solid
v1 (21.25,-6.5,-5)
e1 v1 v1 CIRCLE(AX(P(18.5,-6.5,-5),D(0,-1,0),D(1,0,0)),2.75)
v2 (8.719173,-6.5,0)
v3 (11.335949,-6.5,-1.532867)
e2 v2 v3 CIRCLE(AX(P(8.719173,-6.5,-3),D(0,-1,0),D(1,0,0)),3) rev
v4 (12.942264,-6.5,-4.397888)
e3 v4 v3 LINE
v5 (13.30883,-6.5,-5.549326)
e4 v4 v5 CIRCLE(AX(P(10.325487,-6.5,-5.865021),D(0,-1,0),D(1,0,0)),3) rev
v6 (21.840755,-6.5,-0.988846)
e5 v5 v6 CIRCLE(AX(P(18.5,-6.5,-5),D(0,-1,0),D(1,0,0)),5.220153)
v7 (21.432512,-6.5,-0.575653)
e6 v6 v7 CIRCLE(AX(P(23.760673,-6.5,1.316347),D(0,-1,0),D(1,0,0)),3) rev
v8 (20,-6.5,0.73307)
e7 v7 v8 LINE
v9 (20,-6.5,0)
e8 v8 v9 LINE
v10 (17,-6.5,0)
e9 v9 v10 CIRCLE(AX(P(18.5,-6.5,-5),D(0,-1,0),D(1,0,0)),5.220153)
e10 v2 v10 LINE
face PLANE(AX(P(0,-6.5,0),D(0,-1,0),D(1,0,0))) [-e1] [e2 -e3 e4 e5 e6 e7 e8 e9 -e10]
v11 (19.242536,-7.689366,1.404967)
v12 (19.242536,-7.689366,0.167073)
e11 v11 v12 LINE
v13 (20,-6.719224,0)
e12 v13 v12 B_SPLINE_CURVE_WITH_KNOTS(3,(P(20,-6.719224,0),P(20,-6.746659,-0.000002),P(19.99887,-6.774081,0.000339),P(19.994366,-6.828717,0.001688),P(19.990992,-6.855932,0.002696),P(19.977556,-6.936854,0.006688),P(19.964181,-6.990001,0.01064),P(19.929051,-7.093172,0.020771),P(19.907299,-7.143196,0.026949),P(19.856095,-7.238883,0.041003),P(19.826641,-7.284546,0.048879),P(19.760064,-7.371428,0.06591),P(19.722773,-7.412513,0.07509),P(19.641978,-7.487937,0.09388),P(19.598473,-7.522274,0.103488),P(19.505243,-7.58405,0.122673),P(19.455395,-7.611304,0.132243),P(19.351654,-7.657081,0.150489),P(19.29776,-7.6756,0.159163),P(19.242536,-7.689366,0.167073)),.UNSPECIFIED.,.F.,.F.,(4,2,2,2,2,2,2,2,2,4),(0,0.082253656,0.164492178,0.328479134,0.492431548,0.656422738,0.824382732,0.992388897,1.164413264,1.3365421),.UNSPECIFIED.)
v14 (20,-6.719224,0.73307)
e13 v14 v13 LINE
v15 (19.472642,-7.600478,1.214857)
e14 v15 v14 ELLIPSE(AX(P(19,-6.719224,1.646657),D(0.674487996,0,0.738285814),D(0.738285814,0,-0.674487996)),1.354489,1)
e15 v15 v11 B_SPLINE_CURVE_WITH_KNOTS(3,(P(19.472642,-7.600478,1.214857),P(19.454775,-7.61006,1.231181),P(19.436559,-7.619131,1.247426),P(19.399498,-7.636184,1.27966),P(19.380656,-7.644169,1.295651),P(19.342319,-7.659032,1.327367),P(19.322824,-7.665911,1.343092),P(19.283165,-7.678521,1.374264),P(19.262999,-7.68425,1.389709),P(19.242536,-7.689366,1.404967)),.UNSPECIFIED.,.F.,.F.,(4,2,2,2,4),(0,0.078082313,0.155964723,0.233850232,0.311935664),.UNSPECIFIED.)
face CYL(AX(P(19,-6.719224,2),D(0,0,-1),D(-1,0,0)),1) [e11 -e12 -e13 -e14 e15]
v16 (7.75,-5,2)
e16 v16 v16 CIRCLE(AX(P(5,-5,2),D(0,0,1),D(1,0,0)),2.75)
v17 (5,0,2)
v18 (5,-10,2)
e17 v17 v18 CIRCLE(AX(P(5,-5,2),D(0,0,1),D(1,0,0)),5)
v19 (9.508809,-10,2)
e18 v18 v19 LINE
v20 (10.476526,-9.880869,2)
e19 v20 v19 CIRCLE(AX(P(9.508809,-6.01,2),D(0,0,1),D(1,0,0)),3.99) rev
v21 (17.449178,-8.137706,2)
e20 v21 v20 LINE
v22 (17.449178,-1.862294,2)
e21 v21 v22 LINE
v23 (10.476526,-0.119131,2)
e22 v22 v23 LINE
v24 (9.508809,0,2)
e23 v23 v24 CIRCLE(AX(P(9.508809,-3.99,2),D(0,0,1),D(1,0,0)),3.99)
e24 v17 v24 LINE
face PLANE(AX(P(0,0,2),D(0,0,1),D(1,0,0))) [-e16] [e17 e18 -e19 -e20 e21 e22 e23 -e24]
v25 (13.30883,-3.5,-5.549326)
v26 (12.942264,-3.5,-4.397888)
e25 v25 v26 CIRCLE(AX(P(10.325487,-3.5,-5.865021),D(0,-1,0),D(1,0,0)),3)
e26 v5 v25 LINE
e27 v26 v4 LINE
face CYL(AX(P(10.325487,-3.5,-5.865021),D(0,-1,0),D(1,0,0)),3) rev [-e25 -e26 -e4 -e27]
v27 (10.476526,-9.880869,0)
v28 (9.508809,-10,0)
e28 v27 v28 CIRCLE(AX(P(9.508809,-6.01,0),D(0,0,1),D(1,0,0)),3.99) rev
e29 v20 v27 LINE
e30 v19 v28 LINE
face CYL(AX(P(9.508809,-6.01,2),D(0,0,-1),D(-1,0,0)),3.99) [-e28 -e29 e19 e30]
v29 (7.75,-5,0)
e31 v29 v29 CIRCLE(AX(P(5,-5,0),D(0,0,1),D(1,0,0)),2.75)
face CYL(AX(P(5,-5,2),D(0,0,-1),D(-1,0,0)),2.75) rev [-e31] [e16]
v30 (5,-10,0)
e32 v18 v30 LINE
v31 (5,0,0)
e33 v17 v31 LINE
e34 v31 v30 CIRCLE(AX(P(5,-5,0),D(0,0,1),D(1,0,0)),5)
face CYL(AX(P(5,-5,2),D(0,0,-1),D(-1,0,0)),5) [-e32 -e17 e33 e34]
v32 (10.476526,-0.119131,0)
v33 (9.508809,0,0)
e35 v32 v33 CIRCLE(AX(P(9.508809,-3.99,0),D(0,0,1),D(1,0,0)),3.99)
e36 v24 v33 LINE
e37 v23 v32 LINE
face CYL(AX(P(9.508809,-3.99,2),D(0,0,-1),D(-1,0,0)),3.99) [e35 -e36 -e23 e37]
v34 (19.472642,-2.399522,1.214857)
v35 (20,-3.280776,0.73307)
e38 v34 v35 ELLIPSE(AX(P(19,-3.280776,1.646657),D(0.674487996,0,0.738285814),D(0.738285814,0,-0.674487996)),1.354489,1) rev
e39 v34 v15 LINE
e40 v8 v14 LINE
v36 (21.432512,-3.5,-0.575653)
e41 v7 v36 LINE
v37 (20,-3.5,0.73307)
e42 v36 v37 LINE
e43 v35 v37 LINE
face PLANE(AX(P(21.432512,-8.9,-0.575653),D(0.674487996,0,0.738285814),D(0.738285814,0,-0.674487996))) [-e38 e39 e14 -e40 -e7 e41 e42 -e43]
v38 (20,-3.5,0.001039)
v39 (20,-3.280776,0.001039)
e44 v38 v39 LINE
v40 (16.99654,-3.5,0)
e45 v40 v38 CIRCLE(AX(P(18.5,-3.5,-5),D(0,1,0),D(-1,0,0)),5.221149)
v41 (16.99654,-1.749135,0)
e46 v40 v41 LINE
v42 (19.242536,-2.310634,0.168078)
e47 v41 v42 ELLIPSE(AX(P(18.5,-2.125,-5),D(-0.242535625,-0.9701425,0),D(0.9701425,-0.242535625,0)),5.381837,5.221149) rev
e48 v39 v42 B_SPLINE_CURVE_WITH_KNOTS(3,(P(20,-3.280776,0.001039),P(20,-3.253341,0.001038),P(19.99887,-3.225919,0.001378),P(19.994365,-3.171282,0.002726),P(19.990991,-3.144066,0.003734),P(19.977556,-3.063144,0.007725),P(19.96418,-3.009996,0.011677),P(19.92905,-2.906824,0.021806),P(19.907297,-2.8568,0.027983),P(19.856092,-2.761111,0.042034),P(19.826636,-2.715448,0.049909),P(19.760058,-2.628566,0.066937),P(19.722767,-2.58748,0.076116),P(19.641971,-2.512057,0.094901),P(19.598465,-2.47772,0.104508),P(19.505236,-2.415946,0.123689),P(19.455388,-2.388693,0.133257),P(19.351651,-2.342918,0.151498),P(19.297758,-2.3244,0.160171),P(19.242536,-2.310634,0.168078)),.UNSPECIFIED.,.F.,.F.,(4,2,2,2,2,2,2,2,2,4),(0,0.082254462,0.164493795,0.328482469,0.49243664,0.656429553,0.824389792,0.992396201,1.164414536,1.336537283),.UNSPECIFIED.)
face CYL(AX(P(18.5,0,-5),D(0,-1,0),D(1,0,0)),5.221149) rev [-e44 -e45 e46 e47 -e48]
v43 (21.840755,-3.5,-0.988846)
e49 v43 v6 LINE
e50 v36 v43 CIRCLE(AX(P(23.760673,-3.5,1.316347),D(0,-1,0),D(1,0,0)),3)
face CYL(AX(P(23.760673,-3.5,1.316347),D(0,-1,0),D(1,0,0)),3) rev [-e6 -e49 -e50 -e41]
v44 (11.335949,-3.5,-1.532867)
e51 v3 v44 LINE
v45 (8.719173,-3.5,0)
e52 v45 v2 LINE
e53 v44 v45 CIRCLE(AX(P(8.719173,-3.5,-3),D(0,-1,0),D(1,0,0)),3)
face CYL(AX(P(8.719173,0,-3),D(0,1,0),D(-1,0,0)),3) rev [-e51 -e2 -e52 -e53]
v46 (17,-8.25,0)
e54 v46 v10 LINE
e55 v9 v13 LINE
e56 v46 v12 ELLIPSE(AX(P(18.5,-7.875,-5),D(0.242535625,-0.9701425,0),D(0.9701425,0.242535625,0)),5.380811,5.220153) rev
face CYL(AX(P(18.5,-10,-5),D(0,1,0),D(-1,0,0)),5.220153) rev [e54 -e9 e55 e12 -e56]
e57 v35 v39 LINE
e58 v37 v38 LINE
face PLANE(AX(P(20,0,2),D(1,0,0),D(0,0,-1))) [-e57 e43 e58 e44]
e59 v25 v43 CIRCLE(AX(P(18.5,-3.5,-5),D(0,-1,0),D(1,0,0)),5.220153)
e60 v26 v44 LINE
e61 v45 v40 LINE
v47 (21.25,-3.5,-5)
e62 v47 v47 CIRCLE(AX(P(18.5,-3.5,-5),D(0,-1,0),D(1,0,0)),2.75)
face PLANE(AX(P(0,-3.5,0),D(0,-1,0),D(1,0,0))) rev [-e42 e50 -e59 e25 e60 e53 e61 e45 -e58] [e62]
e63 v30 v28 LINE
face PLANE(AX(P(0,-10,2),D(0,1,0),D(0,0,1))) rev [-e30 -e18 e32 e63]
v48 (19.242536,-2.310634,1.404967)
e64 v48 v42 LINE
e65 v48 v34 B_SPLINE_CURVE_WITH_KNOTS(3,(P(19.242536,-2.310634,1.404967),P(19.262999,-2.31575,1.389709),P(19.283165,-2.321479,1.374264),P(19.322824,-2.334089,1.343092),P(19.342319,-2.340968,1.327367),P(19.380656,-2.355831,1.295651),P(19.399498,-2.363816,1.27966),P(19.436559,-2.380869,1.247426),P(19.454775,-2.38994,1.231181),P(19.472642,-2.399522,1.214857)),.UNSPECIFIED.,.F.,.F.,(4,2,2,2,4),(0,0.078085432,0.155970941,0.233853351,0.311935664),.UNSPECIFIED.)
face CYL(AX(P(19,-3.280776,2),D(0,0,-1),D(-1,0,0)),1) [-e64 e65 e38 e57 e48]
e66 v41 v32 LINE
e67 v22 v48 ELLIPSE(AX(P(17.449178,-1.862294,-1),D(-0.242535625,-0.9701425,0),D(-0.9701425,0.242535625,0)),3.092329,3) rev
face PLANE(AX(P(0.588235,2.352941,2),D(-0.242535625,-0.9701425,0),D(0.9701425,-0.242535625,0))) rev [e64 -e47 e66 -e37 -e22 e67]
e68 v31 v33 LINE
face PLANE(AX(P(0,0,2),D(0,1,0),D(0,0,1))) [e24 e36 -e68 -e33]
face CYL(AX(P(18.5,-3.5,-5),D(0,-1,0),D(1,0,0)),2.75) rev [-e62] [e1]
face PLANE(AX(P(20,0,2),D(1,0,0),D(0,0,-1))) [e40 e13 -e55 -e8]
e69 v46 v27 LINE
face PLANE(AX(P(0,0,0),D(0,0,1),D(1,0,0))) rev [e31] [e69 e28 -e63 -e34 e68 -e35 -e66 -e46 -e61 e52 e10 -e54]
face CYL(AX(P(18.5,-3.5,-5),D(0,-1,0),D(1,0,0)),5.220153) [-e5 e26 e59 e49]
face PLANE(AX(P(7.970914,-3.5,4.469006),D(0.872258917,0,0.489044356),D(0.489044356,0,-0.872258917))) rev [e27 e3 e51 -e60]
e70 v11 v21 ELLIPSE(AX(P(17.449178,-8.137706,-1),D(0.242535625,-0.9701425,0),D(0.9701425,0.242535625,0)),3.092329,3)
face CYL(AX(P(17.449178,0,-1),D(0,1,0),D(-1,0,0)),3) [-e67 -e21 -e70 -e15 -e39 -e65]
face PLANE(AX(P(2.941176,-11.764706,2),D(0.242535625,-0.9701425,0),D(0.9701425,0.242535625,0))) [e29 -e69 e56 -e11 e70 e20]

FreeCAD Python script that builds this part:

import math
import FreeCAD as App
import Part
import Sketcher


def edges_at(feature, points):
    """Names of the edges that pass closest to the given points."""
    edges = feature.Shape.Edges
    near = lambda p: min(range(len(edges)), key=lambda i: edges[i].distToShape(Part.Vertex(*p))[0])
    return sorted({f"Edge{near(p) + 1}" for p in points})


def add_polygon(sketch, points):
    """Adds a closed chain of lines whose ends are joined by coincident constraints."""
    first, n = sketch.GeometryCount, len(points)
    for a, b in zip(points, points[1:] + points[:1]):
        sketch.addGeometry(Part.LineSegment(App.Vector(*a, 0), App.Vector(*b, 0)), False)
    for i in range(n):
        sketch.addConstraint(Sketcher.Constraint("Coincident", first + i, 2, first + (i + 1) % n, 1))

doc = App.newDocument("Part")
body = doc.addObject("PartDesign::Body", "Body")

# Sketch on XY plane
sketch1 = body.newObject("Sketcher::SketchObject", "Sketch")
sketch1.AttachmentSupport = (doc.getObject("XY_Plane"), [""])
sketch1.MapMode = "FlatFace"
sketch1.addGeometry(Part.LineSegment(App.Vector(9.5, 0, 0), App.Vector(5, 0, 0)), False)
sketch1.addGeometry(Part.ArcOfCircle(Part.Circle(App.Vector(5, -5, 0), App.Vector(0, 0, 1), 5), math.radians(90), math.radians(180)), False)
sketch1.addGeometry(Part.ArcOfCircle(Part.Circle(App.Vector(5, -5, 0), App.Vector(0, 0, 1), 5), math.radians(180), math.radians(270)), False)
sketch1.addGeometry(Part.LineSegment(App.Vector(5, -10, 0), App.Vector(9.5, -10, 0)), False)
sketch1.addGeometry(Part.ArcOfCircle(Part.Circle(App.Vector(9.5, -6, 0), App.Vector(0, 0, 1), 4), math.radians(-90), math.radians(-75.96)), False)
sketch1.addGeometry(Part.LineSegment(App.Vector(10.5, -9.9, 0), App.Vector(19.2, -7.7, 0)), False)
sketch1.addGeometry(Part.ArcOfCircle(Part.Circle(App.Vector(19, -6.7, 0), App.Vector(0, 0, 1), 1), math.radians(-76), math.radians(0)), False)
sketch1.addGeometry(Part.LineSegment(App.Vector(20, -6.7, 0), App.Vector(20, -3.3, 0)), False)
sketch1.addGeometry(Part.ArcOfCircle(Part.Circle(App.Vector(19, -3.3, 0), App.Vector(0, 0, 1), 1), math.radians(0), math.radians(76)), False)
sketch1.addGeometry(Part.LineSegment(App.Vector(19.2, -2.3, 0), App.Vector(10.5, -0.1, 0)), False)
sketch1.addGeometry(Part.ArcOfCircle(Part.Circle(App.Vector(9.5, -4, 0), App.Vector(0, 0, 1), 4), math.radians(75.96), math.radians(90)), False)
sketch1.addGeometry(Part.Circle(App.Vector(5, -5, 0), App.Vector(0, 0, 1), 2.8), False)
sketch1.addConstraint(Sketcher.Constraint("Tangent", 0, 2, 1, 1))
sketch1.addConstraint(Sketcher.Constraint("Tangent", 1, 2, 2, 1))
sketch1.addConstraint(Sketcher.Constraint("Tangent", 2, 2, 3, 1))
sketch1.addConstraint(Sketcher.Constraint("Tangent", 3, 2, 4, 1))
sketch1.addConstraint(Sketcher.Constraint("Tangent", 4, 2, 5, 1))
sketch1.addConstraint(Sketcher.Constraint("Tangent", 5, 2, 6, 1))
sketch1.addConstraint(Sketcher.Constraint("Tangent", 6, 2, 7, 1))
sketch1.addConstraint(Sketcher.Constraint("Tangent", 7, 2, 8, 1))
sketch1.addConstraint(Sketcher.Constraint("Tangent", 8, 2, 9, 1))
sketch1.addConstraint(Sketcher.Constraint("Tangent", 9, 2, 10, 1))
sketch1.addConstraint(Sketcher.Constraint("Tangent", 10, 2, 0, 1))
sketch1.addConstraint(Sketcher.Constraint("Horizontal", 0))
sketch1.addConstraint(Sketcher.Constraint("Horizontal", 3))
sketch1.addConstraint(Sketcher.Constraint("Vertical", 7))
sketch1.addConstraint(Sketcher.Constraint("Coincident", 11, 3, 1, 3))
sketch1.addConstraint(Sketcher.Constraint("Equal", 1, 2))
sketch1.addConstraint(Sketcher.Constraint("Equal", 6, 8))
sketch1.addConstraint(Sketcher.Constraint("Equal", 4, 10))
sketch1.addConstraint(Sketcher.Constraint("PointOnObject", 0, 2, -1))
sketch1.addConstraint(Sketcher.Constraint("PointOnObject", 1, 2, -2))
sketch1.addConstraint(Sketcher.Constraint("Horizontal", 11, 3, 1, 2))
sketch1.addConstraint(Sketcher.Constraint("Vertical", 4, 3, 10, 3))
sketch1.addConstraint(Sketcher.Constraint("Vertical", 5, 2, 8, 2))
sketch1.addConstraint(Sketcher.Constraint("Radius", 1, 5.0))
sketch1.addConstraint(Sketcher.Constraint("Radius", 6, 1.0))
sketch1.addConstraint(Sketcher.Constraint("Diameter", 11, 5.5))
sketch1.addConstraint(Sketcher.Constraint("Radius", 4, 3.99))
sketch1.addConstraint(Sketcher.Constraint("DistanceX", -1, 1, 6, 3, 19.0))
sketch1.addConstraint(Sketcher.Constraint("DistanceX", 0, 2, 0, 1, 4.508809))
sketch1.addConstraint(Sketcher.Constraint("DistanceY", 7, 1, 7, 2, 3.438447))
pad1 = body.newObject("PartDesign::Pad", "Pad")
pad1.Profile = sketch1
pad1.Length = 2

# Sketch on XZ plane
sketch2 = body.newObject("Sketcher::SketchObject", "Sketch001")
sketch2.AttachmentSupport = (doc.getObject("XZ_Plane"), [""])
sketch2.MapMode = "FlatFace"
sketch2.AttachmentOffset = App.Placement(App.Vector(0, 0, 4), App.Rotation())
sketch2.addGeometry(Part.ArcOfCircle(Part.Circle(App.Vector(18.5, -5, 0), App.Vector(0, 0, 1), 5.2), math.radians(0), math.radians(56)), False)
sketch2.addGeometry(Part.LineSegment(App.Vector(21.4, -0.7, 0), App.Vector(20, 2, 0)), False)
sketch2.addGeometry(Part.LineSegment(App.Vector(20, 2, 0), App.Vector(10.5, 0, 0)), False)
sketch2.addGeometry(Part.LineSegment(App.Vector(10.5, 0, 0), App.Vector(13.3, -5, 0)), False)
sketch2.addGeometry(Part.ArcOfCircle(Part.Circle(App.Vector(18.5, -5, 0), App.Vector(0, 0, 1), 5.2), math.radians(180), math.radians(360)), False)
sketch2.addGeometry(Part.ArcOfCircle(Part.Circle(App.Vector(18.5, -5, 0), App.Vector(0, 0, 1), 2.8), math.radians(180), math.radians(417)), False)
sketch2.addGeometry(Part.ArcOfCircle(Part.Circle(App.Vector(18.5, -5, 0), App.Vector(0, 0, 1), 2.8), math.radians(148), math.radians(180)), False)
sketch2.addGeometry(Part.ArcOfCircle(Part.Circle(App.Vector(18.5, -5, 0), App.Vector(0, 0, 1), 2.7), math.radians(57), math.radians(148)), False)
sketch2.addConstraint(Sketcher.Constraint("Coincident", 0, 2, 1, 1))
sketch2.addConstraint(Sketcher.Constraint("Coincident", 1, 2, 2, 1))
sketch2.addConstraint(Sketcher.Constraint("Coincident", 2, 2, 3, 1))
sketch2.addConstraint(Sketcher.Constraint("Coincident", 3, 2, 4, 1))
sketch2.addConstraint(Sketcher.Constraint("Tangent", 4, 2, 0, 1))
sketch2.addConstraint(Sketcher.Constraint("Tangent", 5, 1, 6, 2))
sketch2.addConstraint(Sketcher.Constraint("Tangent", 6, 1, 7, 2))
sketch2.addConstraint(Sketcher.Constraint("Tangent", 7, 1, 5, 2))
sketch2.addConstraint(Sketcher.Constraint("Coincident", 5, 3, 0, 3))
sketch2.addConstraint(Sketcher.Constraint("Equal", 0, 4))
sketch2.addConstraint(Sketcher.Constraint("PointOnObject", 2, 2, -1))
sketch2.addConstraint(Sketcher.Constraint("Horizontal", 7, 3, 3, 2))
sketch2.addConstraint(Sketcher.Constraint("Horizontal", 3, 2, 4, 2))
sketch2.addConstraint(Sketcher.Constraint("Horizontal", 4, 2, 5, 1))
sketch2.addConstraint(Sketcher.Constraint("Vertical", 1, 2, 7, 1))
sketch2.addConstraint(Sketcher.Constraint("Radius", 5, 2.75))
sketch2.addConstraint(Sketcher.Constraint("DistanceY", 0, 3, -1, 1, 5.0))
sketch2.addConstraint(Sketcher.Constraint("DistanceX", -1, 1, 1, 2, 20.0))
sketch2.addConstraint(Sketcher.Constraint("DistanceY", -1, 1, 1, 2, 2.0))
sketch2.addConstraint(Sketcher.Constraint("DistanceX", -1, 1, 0, 3, 18.5))
sketch2.addConstraint(Sketcher.Constraint("Radius", 0, 5.220153))
sketch2.addConstraint(Sketcher.Constraint("DistanceX", -1, 1, 0, 2, 21.42082))
sketch2.addConstraint(Sketcher.Constraint("DistanceX", -1, 1, 6, 1, 16.166089))
sketch2.addConstraint(Sketcher.Constraint("Distance", 2, 9.731216))
pad2 = body.newObject("PartDesign::Pad", "Pad001")
pad2.Profile = sketch2
pad2.Type = "TwoLengths"
pad2.Length = 2.5
pad2.Length2 = 0.5
doc.recompute()

fillet = body.newObject("PartDesign::Fillet", "Fillet")
fillet.Base = (pad2, edges_at(pad2, [(10.477, -5, 0), (21.421, -5, -0.673), (13.28, -5, -5)]))
fillet.Radius = 3

# Sketch on XZ plane
sketch3 = body.newObject("Sketcher::SketchObject", "Sketch002")
sketch3.AttachmentSupport = (doc.getObject("XZ_Plane"), [""])
sketch3.MapMode = "FlatFace"
sketch3.AttachmentOffset = App.Placement(App.Vector(0, 0, 4), App.Rotation())
add_polygon(sketch3, [(18.6, 2), (21.4, -0.6), (20, 2)])  # lines 0-2
sketch3.addConstraint(Sketcher.Constraint("Horizontal", 2))
sketch3.addConstraint(Sketcher.Constraint("DistanceX", -1, 1, 1, 2, 20.0))
sketch3.addConstraint(Sketcher.Constraint("DistanceY", -1, 1, 1, 2, 2.0))
sketch3.addConstraint(Sketcher.Constraint("Distance", 0, 3.818679))
sketch3.addConstraint(Sketcher.Constraint("DistanceX", 2, 2, 2, 1, 1.386765))
sketch3.addConstraint(Sketcher.Constraint("DistanceX", -1, 1, 0, 2, 21.432512))
pocket1 = body.newObject("PartDesign::Pocket", "Pocket")
pocket1.Profile = sketch3
pocket1.Type = "ThroughAll"
pocket1.Midplane = True
doc.recompute()

fillet2 = body.newObject("PartDesign::Fillet", "Fillet001")
fillet2.Base = (pocket1, edges_at(pocket1, [(18.613, -5, 2)]))
fillet2.Radius = 3

# Sketch on XZ plane
sketch4 = body.newObject("Sketcher::SketchObject", "Sketch003")
sketch4.AttachmentSupport = (doc.getObject("XZ_Plane"), [""])
sketch4.MapMode = "FlatFace"
sketch4.AttachmentOffset = App.Placement(App.Vector(0, 0, 6.5), App.Rotation())
sketch4.addGeometry(Part.Circle(App.Vector(18, -5, 0), App.Vector(0, 0, 1), 5), False)
sketch4.addConstraint(Sketcher.Constraint("DistanceY", 0, 3, -1, 1, 5.0))
sketch4.addConstraint(Sketcher.Constraint("DistanceX", -1, 1, 0, 3, 18.5))
sketch4.addConstraint(Sketcher.Constraint("Diameter", 0, 10.440307))
pocket2 = body.newObject("PartDesign::Pocket", "Pocket001")
pocket2.Profile = sketch4
pocket2.Length = 3.5
pocket2.Reversed = True

# Sketch on XZ plane
sketch5 = body.newObject("Sketcher::SketchObject", "Sketch004")
sketch5.AttachmentSupport = (doc.getObject("XZ_Plane"), [""])
sketch5.MapMode = "FlatFace"
sketch5.AttachmentOffset = App.Placement(App.Vector(0, 0, 3.5), App.Rotation())
sketch5.addGeometry(Part.Circle(App.Vector(18, -5, 0), App.Vector(0, 0, 1), 5), False)
sketch5.addConstraint(Sketcher.Constraint("DistanceY", 0, 3, -1, 1, 5.0))
sketch5.addConstraint(Sketcher.Constraint("DistanceX", -1, 1, 0, 3, 18.5))
sketch5.addConstraint(Sketcher.Constraint("Diameter", 0, 10.442297))
pocket3 = body.newObject("PartDesign::Pocket", "Pocket002")
pocket3.Profile = sketch5
pocket3.Length = 3.5

doc.recompute()
